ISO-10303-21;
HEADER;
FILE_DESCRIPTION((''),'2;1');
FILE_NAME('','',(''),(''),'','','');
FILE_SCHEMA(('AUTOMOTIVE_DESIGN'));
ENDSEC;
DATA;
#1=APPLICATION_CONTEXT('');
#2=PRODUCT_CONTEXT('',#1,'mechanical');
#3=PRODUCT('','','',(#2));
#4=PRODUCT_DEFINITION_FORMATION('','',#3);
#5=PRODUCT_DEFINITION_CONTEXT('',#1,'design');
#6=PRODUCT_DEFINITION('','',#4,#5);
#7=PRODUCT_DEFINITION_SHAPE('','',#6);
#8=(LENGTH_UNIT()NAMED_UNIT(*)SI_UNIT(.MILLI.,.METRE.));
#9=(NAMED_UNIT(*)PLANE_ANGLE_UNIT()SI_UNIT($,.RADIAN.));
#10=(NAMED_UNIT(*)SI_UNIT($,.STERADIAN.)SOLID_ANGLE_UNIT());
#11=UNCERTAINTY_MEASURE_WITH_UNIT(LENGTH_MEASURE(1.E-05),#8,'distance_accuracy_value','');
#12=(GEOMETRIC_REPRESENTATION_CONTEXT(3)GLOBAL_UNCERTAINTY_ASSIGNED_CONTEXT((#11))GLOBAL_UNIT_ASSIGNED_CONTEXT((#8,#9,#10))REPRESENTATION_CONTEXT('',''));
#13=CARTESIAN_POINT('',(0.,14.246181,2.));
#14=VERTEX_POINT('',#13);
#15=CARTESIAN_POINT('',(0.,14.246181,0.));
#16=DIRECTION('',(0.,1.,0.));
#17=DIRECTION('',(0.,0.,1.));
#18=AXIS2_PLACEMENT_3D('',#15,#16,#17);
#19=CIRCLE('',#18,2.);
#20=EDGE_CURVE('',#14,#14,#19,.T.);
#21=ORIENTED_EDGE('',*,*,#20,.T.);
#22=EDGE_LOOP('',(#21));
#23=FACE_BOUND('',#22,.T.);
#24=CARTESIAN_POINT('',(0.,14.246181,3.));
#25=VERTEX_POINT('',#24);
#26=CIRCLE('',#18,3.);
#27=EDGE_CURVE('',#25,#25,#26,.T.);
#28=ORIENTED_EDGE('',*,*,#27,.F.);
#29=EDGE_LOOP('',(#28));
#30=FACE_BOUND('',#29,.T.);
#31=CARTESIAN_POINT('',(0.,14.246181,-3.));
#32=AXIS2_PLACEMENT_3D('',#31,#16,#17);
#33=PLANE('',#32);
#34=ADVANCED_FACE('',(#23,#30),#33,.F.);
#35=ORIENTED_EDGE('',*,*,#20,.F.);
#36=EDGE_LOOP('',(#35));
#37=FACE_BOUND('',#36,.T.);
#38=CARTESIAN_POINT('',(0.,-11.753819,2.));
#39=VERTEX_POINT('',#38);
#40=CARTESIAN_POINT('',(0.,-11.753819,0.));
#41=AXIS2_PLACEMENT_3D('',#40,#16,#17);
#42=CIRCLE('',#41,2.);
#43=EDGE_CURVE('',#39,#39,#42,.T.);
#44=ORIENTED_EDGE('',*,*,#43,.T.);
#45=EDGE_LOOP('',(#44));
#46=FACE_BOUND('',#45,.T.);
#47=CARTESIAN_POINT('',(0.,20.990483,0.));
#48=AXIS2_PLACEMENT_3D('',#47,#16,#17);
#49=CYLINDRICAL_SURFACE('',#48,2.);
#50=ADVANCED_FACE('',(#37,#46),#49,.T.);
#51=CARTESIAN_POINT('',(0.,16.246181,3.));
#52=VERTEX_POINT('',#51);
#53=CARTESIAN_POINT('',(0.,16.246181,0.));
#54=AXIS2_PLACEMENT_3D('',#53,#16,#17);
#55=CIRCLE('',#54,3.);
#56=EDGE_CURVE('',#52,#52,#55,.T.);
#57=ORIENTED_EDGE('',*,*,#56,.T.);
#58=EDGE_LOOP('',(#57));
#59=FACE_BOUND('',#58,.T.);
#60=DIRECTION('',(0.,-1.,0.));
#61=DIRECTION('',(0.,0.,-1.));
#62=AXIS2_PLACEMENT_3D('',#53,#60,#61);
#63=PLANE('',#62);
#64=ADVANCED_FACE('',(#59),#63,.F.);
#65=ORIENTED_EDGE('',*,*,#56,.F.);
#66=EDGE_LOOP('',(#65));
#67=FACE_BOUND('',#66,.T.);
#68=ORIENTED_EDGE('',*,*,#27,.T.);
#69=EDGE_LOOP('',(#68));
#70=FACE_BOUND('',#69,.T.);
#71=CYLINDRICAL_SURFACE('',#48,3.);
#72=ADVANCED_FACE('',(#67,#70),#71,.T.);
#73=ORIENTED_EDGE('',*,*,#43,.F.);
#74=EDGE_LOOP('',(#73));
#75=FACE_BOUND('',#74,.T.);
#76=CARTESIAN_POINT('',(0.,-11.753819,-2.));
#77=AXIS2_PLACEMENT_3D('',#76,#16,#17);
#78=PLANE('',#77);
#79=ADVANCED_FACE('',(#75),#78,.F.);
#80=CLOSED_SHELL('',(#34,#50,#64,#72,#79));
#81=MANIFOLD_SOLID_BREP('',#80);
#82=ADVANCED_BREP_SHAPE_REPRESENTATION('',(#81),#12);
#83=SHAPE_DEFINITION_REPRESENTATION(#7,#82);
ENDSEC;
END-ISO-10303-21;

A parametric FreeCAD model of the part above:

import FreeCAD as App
import Part
import Sketcher

V = App.Vector

doc = App.newDocument("Part")
params = doc.addObject("Spreadsheet::Sheet", "Params")
for row, (alias, value) in enumerate([
    ("sketch1_width", "28 mm"),
    ("sketch1_width2", "26 mm"),
    ("sketch1_height", "3 mm"),
    ("revolution_angle", "360 deg"),
], start=1):
    params.set(f"A{row}", alias)
    params.set(f"B{row}", "=" + value)
    params.setAlias(f"B{row}", alias)

body = doc.addObject("PartDesign::Body", "Body")

# Sketch on YZ plane
sketch1 = doc.addObject("Sketcher::SketchObject", "Sketch")
body.addObject(sketch1)
sketch1.AttachmentSupport = (doc.YZ_Plane, [""])
sketch1.MapMode = "FlatFace"
sketch1.addGeometry(Part.LineSegment(V(16.2, -3, 0), V(16.2, 0, 0)), False)
sketch1.addGeometry(Part.LineSegment(V(16.2, 0, 0), V(-11.8, 0, 0)), False)
sketch1.addGeometry(Part.LineSegment(V(-11.8, 0, 0), V(-11.8, -2, 0)), False)
sketch1.addGeometry(Part.LineSegment(V(-11.8, -2, 0), V(14.2, -2, 0)), False)
sketch1.addGeometry(Part.LineSegment(V(14.2, -2, 0), V(14.2, -3, 0)), False)
sketch1.addGeometry(Part.LineSegment(V(14.2, -3, 0), V(16.2, -3, 0)), False)
sketch1.addConstraint(Sketcher.Constraint("Coincident", 0, 2, 1, 1))
sketch1.addConstraint(Sketcher.Constraint("Coincident", 1, 2, 2, 1))
sketch1.addConstraint(Sketcher.Constraint("Coincident", 2, 2, 3, 1))
sketch1.addConstraint(Sketcher.Constraint("Coincident", 3, 2, 4, 1))
sketch1.addConstraint(Sketcher.Constraint("Coincident", 4, 2, 5, 1))
sketch1.addConstraint(Sketcher.Constraint("Coincident", 5, 2, 0, 1))
sketch1.addConstraint(Sketcher.Constraint("Vertical", 0))
sketch1.addConstraint(Sketcher.Constraint("Horizontal", 1))
sketch1.addConstraint(Sketcher.Constraint("Vertical", 2))
sketch1.addConstraint(Sketcher.Constraint("Horizontal", 3))
sketch1.addConstraint(Sketcher.Constraint("Vertical", 4))
sketch1.addConstraint(Sketcher.Constraint("Horizontal", 5))
sketch1.addConstraint(Sketcher.Constraint("PointOnObject", 0, 2, -1))
sketch1.addConstraint(Sketcher.Constraint("Equal", 5, 2))
sketch1.addConstraint(Sketcher.Constraint("DistanceX", 1, 2, 1, 1, 28.0))
sketch1.addConstraint(Sketcher.Constraint("DistanceX", 3, 1, 3, 2, 26.0))
sketch1.addConstraint(Sketcher.Constraint("DistanceY", 0, 1, 0, 2, 3.0))
sketch1.addConstraint(Sketcher.Constraint("DistanceX", -1, 1, 0, 2, 16.246181))
sketch1.setExpression("Constraints[14]", "Params.sketch1_width")
sketch1.setExpression("Constraints[15]", "Params.sketch1_width2")
sketch1.setExpression("Constraints[16]", "Params.sketch1_height")
revolution = doc.addObject("PartDesign::Revolution", "Revolution")
body.addObject(revolution)
revolution.Profile = sketch1
revolution.ReferenceAxis = (sketch1, ["H_Axis"])
revolution.setExpression("Angle", "Params.revolution_angle")

doc.recompute()
